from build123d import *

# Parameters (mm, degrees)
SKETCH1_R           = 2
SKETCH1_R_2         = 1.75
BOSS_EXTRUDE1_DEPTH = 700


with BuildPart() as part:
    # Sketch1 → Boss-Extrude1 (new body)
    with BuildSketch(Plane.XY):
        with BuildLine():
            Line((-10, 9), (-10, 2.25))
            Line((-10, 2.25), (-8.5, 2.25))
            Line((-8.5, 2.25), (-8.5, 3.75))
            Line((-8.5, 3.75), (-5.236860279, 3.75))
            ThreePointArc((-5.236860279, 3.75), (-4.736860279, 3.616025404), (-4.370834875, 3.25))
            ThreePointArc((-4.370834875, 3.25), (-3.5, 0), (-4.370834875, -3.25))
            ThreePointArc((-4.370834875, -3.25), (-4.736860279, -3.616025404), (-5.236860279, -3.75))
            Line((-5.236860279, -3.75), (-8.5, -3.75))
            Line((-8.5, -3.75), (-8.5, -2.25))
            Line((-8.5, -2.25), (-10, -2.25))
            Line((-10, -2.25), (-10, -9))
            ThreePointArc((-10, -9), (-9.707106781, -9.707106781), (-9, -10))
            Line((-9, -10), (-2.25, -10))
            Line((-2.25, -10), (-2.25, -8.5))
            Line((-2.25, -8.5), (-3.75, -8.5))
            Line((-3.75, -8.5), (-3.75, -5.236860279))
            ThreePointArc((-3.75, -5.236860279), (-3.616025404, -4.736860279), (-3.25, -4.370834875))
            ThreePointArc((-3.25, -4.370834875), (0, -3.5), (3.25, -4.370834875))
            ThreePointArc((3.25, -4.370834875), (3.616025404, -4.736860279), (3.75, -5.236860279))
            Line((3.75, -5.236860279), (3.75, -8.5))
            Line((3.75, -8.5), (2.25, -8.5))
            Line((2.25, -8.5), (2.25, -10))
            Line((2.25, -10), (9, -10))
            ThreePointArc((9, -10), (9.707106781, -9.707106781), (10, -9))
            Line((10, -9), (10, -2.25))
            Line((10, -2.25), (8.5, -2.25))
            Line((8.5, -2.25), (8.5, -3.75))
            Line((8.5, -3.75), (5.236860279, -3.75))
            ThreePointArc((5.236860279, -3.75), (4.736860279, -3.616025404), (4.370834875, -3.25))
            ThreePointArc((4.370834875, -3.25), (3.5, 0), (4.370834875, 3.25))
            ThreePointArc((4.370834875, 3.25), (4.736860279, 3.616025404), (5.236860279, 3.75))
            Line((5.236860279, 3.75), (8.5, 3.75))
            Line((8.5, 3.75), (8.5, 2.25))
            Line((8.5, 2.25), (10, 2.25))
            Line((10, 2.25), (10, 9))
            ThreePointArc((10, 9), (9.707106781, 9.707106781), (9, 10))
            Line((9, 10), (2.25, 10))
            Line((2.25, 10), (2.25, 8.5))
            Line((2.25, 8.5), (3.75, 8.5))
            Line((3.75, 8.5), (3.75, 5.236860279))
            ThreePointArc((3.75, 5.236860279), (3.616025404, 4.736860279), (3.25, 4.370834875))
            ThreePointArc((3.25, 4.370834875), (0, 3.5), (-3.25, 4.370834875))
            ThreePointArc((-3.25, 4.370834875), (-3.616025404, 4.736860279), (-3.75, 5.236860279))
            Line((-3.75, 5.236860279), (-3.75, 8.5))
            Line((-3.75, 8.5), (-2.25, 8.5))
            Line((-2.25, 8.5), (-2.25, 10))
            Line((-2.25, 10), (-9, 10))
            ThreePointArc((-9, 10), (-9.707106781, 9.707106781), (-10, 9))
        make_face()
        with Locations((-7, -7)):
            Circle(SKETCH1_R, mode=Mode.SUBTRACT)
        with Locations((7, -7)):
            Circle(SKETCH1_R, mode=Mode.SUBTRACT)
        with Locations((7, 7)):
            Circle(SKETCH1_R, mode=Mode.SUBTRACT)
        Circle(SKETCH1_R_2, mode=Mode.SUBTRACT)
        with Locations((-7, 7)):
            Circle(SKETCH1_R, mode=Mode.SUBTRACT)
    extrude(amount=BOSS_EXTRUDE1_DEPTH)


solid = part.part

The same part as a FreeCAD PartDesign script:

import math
import FreeCAD as App
import Part
import Sketcher

V = App.Vector
Q = App.Units.Quantity

doc = App.newDocument("Part")
body = doc.addObject("PartDesign::Body", "Body")

sketch1 = body.newObject("Sketcher::SketchObject", "Sketch")
sketch1.AttachmentSupport = (doc.getObject("XY_Plane"), [""])
sketch1.MapMode = "FlatFace"
sketch1.addGeometry([
    Part.LineSegment(V(-10, 9, 0), V(-10, 2.25, 0)),
    Part.LineSegment(V(-10, 2.25, 0), V(-8.5, 2.25, 0)),
    Part.LineSegment(V(-8.5, 2.25, 0), V(-8.5, 3.75, 0)),
    Part.LineSegment(V(-8.5, 3.75, 0), V(-5.23686, 3.75, 0)),
    Part.ArcOfCircle(Part.Circle(V(-5.23686, 2.75, 0), V(0, 0, 1), 1), math.radians(30), math.radians(90)),
    Part.ArcOfCircle(Part.Circle(V(-10, 0, 0), V(0, 0, 1), 6.5), math.radians(-30), math.radians(30)),
    Part.ArcOfCircle(Part.Circle(V(-5.23686, -2.75, 0), V(0, 0, 1), 1), math.radians(-90), math.radians(-30)),
    Part.LineSegment(V(-5.23686, -3.75, 0), V(-8.5, -3.75, 0)),
    Part.LineSegment(V(-8.5, -3.75, 0), V(-8.5, -2.25, 0)),
    Part.LineSegment(V(-8.5, -2.25, 0), V(-10, -2.25, 0)),
    Part.LineSegment(V(-10, -2.25, 0), V(-10, -9, 0)),
    Part.ArcOfCircle(Part.Circle(V(-9, -9, 0), V(0, 0, 1), 1), math.radians(-180), math.radians(-90)),
    Part.LineSegment(V(-9, -10, 0), V(-2.25, -10, 0)),
    Part.LineSegment(V(-2.25, -10, 0), V(-2.25, -8.5, 0)),
    Part.LineSegment(V(-2.25, -8.5, 0), V(-3.75, -8.5, 0)),
    Part.LineSegment(V(-3.75, -8.5, 0), V(-3.75, -5.23686, 0)),
    Part.ArcOfCircle(Part.Circle(V(-2.75, -5.23686, 0), V(0, 0, 1), 1), math.radians(120), math.radians(180)),
    Part.ArcOfCircle(Part.Circle(V(0, -10, 0), V(0, 0, 1), 6.5), math.radians(60), math.radians(120)),
    Part.ArcOfCircle(Part.Circle(V(2.75, -5.23686, 0), V(0, 0, 1), 1), math.radians(0), math.radians(60)),
    Part.LineSegment(V(3.75, -5.23686, 0), V(3.75, -8.5, 0)),
    Part.LineSegment(V(3.75, -8.5, 0), V(2.25, -8.5, 0)),
    Part.LineSegment(V(2.25, -8.5, 0), V(2.25, -10, 0)),
    Part.LineSegment(V(2.25, -10, 0), V(9, -10, 0)),
    Part.ArcOfCircle(Part.Circle(V(9, -9, 0), V(0, 0, 1), 1), math.radians(-90), math.radians(0)),
    Part.LineSegment(V(10, -9, 0), V(10, -2.25, 0)),
    Part.LineSegment(V(10, -2.25, 0), V(8.5, -2.25, 0)),
    Part.LineSegment(V(8.5, -2.25, 0), V(8.5, -3.75, 0)),
    Part.LineSegment(V(8.5, -3.75, 0), V(5.23686, -3.75, 0)),
    Part.ArcOfCircle(Part.Circle(V(5.23686, -2.75, 0), V(0, 0, 1), 1), math.radians(-150), math.radians(-90)),
    Part.ArcOfCircle(Part.Circle(V(10, 0, 0), V(0, 0, 1), 6.5), math.radians(150), math.radians(210)),
    Part.ArcOfCircle(Part.Circle(V(5.23686, 2.75, 0), V(0, 0, 1), 1), math.radians(90), math.radians(150)),
    Part.LineSegment(V(5.23686, 3.75, 0), V(8.5, 3.75, 0)),
    Part.LineSegment(V(8.5, 3.75, 0), V(8.5, 2.25, 0)),
    Part.LineSegment(V(8.5, 2.25, 0), V(10, 2.25, 0)),
    Part.LineSegment(V(10, 2.25, 0), V(10, 9, 0)),
    Part.ArcOfCircle(Part.Circle(V(9, 9, 0), V(0, 0, 1), 1), math.radians(0), math.radians(90)),
    Part.LineSegment(V(9, 10, 0), V(2.25, 10, 0)),
    Part.LineSegment(V(2.25, 10, 0), V(2.25, 8.5, 0)),
    Part.LineSegment(V(2.25, 8.5, 0), V(3.75, 8.5, 0)),
    Part.LineSegment(V(3.75, 8.5, 0), V(3.75, 5.23686, 0)),
    Part.ArcOfCircle(Part.Circle(V(2.75, 5.23686, 0), V(0, 0, 1), 1), math.radians(-60), math.radians(0)),
    Part.ArcOfCircle(Part.Circle(V(0, 10, 0), V(0, 0, 1), 6.5), math.radians(-120), math.radians(-60)),
    Part.ArcOfCircle(Part.Circle(V(-2.75, 5.23686, 0), V(0, 0, 1), 1), math.radians(180), math.radians(240)),
    Part.LineSegment(V(-3.75, 5.23686, 0), V(-3.75, 8.5, 0)),
    Part.LineSegment(V(-3.75, 8.5, 0), V(-2.25, 8.5, 0)),
    Part.LineSegment(V(-2.25, 8.5, 0), V(-2.25, 10, 0)),
    Part.LineSegment(V(-2.25, 10, 0), V(-9, 10, 0)),
    Part.ArcOfCircle(Part.Circle(V(-9, 9, 0), V(0, 0, 1), 1), math.radians(90), math.radians(180)),
    Part.Circle(V(-7, -7, 0), V(0, 0, 1), 2),
    Part.Circle(V(7, -7, 0), V(0, 0, 1), 2),
    Part.Circle(V(-7, 7, 0), V(0, 0, 1), 2),
    Part.Circle(V(0, 0, 0), V(0, 0, 1), 1.75),
    Part.Circle(V(7, 7, 0), V(0, 0, 1), 2),
], False)
sketch1.addConstraint([
    Sketcher.Constraint("Coincident", 0, 2, 1, 1),
    Sketcher.Constraint("Coincident", 1, 2, 2, 1),
    Sketcher.Constraint("Coincident", 2, 2, 3, 1),
    Sketcher.Constraint("Tangent", 3, 2, 4, 2),
    Sketcher.Constraint("Tangent", 4, 1, 5, 2),
    Sketcher.Constraint("Tangent", 5, 1, 6, 2),
    Sketcher.Constraint("Tangent", 6, 1, 7, 1),
    Sketcher.Constraint("Coincident", 7, 2, 8, 1),
    Sketcher.Constraint("Coincident", 8, 2, 9, 1),
    Sketcher.Constraint("Coincident", 9, 2, 10, 1),
    Sketcher.Constraint("Tangent", 10, 2, 11, 1),
    Sketcher.Constraint("Tangent", 11, 2, 12, 1),
    Sketcher.Constraint("Coincident", 12, 2, 13, 1),
    Sketcher.Constraint("Coincident", 13, 2, 14, 1),
    Sketcher.Constraint("Coincident", 14, 2, 15, 1),
    Sketcher.Constraint("Tangent", 15, 2, 16, 2),
    Sketcher.Constraint("Tangent", 16, 1, 17, 2),
    Sketcher.Constraint("Tangent", 17, 1, 18, 2),
    Sketcher.Constraint("Tangent", 18, 1, 19, 1),
    Sketcher.Constraint("Coincident", 19, 2, 20, 1),
    Sketcher.Constraint("Coincident", 20, 2, 21, 1),
    Sketcher.Constraint("Coincident", 21, 2, 22, 1),
    Sketcher.Constraint("Tangent", 22, 2, 23, 1),
    Sketcher.Constraint("Tangent", 23, 2, 24, 1),
    Sketcher.Constraint("Coincident", 24, 2, 25, 1),
    Sketcher.Constraint("Coincident", 25, 2, 26, 1),
    Sketcher.Constraint("Coincident", 26, 2, 27, 1),
    Sketcher.Constraint("Tangent", 27, 2, 28, 2),
    Sketcher.Constraint("Tangent", 28, 1, 29, 2),
    Sketcher.Constraint("Tangent", 29, 1, 30, 2),
    Sketcher.Constraint("Tangent", 30, 1, 31, 1),
    Sketcher.Constraint("Coincident", 31, 2, 32, 1),
    Sketcher.Constraint("Coincident", 32, 2, 33, 1),
    Sketcher.Constraint("Coincident", 33, 2, 34, 1),
    Sketcher.Constraint("Tangent", 34, 2, 35, 1),
    Sketcher.Constraint("Tangent", 35, 2, 36, 1),
    Sketcher.Constraint("Coincident", 36, 2, 37, 1),
    Sketcher.Constraint("Coincident", 37, 2, 38, 1),
    Sketcher.Constraint("Coincident", 38, 2, 39, 1),
    Sketcher.Constraint("Tangent", 39, 2, 40, 2),
    Sketcher.Constraint("Tangent", 40, 1, 41, 2),
    Sketcher.Constraint("Tangent", 41, 1, 42, 2),
    Sketcher.Constraint("Tangent", 42, 1, 43, 1),
    Sketcher.Constraint("Coincident", 43, 2, 44, 1),
    Sketcher.Constraint("Coincident", 44, 2, 45, 1),
    Sketcher.Constraint("Coincident", 45, 2, 46, 1),
    Sketcher.Constraint("Tangent", 46, 2, 47, 1),
    Sketcher.Constraint("Tangent", 47, 2, 0, 1),
    Sketcher.Constraint("Vertical", 0),
    Sketcher.Constraint("Horizontal", 1),
    Sketcher.Constraint("Vertical", 2),
    Sketcher.Constraint("Horizontal", 3),
    Sketcher.Constraint("Horizontal", 7),
    Sketcher.Constraint("Vertical", 8),
    Sketcher.Constraint("Horizontal", 9),
    Sketcher.Constraint("Vertical", 10),
    Sketcher.Constraint("Horizontal", 12),
    Sketcher.Constraint("Vertical", 13),
    Sketcher.Constraint("Horizontal", 14),
    Sketcher.Constraint("Vertical", 15),
    Sketcher.Constraint("Vertical", 19),
    Sketcher.Constraint("Horizontal", 20),
    Sketcher.Constraint("Vertical", 21),
    Sketcher.Constraint("Horizontal", 22),
    Sketcher.Constraint("Vertical", 24),
    Sketcher.Constraint("Horizontal", 25),
    Sketcher.Constraint("Vertical", 26),
    Sketcher.Constraint("Horizontal", 27),
    Sketcher.Constraint("Horizontal", 31),
    Sketcher.Constraint("Vertical", 32),
    Sketcher.Constraint("Horizontal", 33),
    Sketcher.Constraint("Vertical", 34),
    Sketcher.Constraint("Horizontal", 36),
    Sketcher.Constraint("Vertical", 37),
    Sketcher.Constraint("Horizontal", 38),
    Sketcher.Constraint("Vertical", 39),
    Sketcher.Constraint("Vertical", 43),
    Sketcher.Constraint("Horizontal", 44),
    Sketcher.Constraint("Vertical", 45),
    Sketcher.Constraint("Horizontal", 46),
    Sketcher.Constraint("Coincident", 51, 3, -1, 1),
    Sketcher.Constraint("Equal", 4, 6),
    Sketcher.Constraint("Equal", 6, 11),
    Sketcher.Constraint("Equal", 11, 16),
    Sketcher.Constraint("Equal", 5, 17),
    Sketcher.Constraint("Equal", 16, 18),
    Sketcher.Constraint("Equal", 18, 23),
    Sketcher.Constraint("Equal", 23, 28),
    Sketcher.Constraint("Equal", 17, 29),
    Sketcher.Constraint("Equal", 28, 30),
    Sketcher.Constraint("Equal", 30, 35),
    Sketcher.Constraint("Equal", 35, 40),
    Sketcher.Constraint("Equal", 29, 41),
    Sketcher.Constraint("Equal", 40, 42),
    Sketcher.Constraint("Equal", 42, 47),
    Sketcher.Constraint("Equal", 48, 49),
    Sketcher.Constraint("Equal", 49, 50),
    Sketcher.Constraint("Equal", 50, 52),
    Sketcher.Constraint("Symmetric", 4, 3, 28, 3, -1, 1),
    Sketcher.Constraint("Symmetric", 6, 3, 30, 3, -1, 1),
    Sketcher.Constraint("Symmetric", 11, 3, 35, 3, -1, 1),
    Sketcher.Constraint("Symmetric", 16, 3, 40, 3, -1, 1),
    Sketcher.Constraint("Symmetric", 18, 3, 42, 3, -1, 1),
    Sketcher.Constraint("Symmetric", 23, 3, 47, 3, -1, 1),
    Sketcher.Constraint("Symmetric", 49, 3, 50, 3, -1, 1),
    Sketcher.Constraint("Symmetric", 48, 3, 52, 3, -1, 1),
    Sketcher.Constraint("Symmetric", 1, 2, 25, 2, -1, 1),
    Sketcher.Constraint("Symmetric", 8, 2, 32, 2, -1, 1),
    Sketcher.Constraint("Symmetric", 13, 2, 37, 2, -1, 1),
    Sketcher.Constraint("Symmetric", 20, 2, 44, 2, -1, 1),
    Sketcher.Constraint("Symmetric", 16, 3, 18, 3, -2),
    Sketcher.Constraint("Symmetric", 11, 3, 23, 3, -2),
    Sketcher.Constraint("Symmetric", 6, 3, 28, 3, -2),
    Sketcher.Constraint("Symmetric", 48, 3, 49, 3, -2),
    Sketcher.Constraint("Symmetric", 13, 2, 20, 2, -2),
    Sketcher.Constraint("Symmetric", 8, 2, 25, 2, -2),
    Sketcher.Constraint("Horizontal", 17, 3, 11, 2),
    Sketcher.Constraint("Vertical", 5, 3, 0, 2),
    Sketcher.Constraint("Equal", 9, 14),
    Sketcher.Constraint("Equal", 46, 0),
    Sketcher.Constraint("Equal", 44, 2),
    Sketcher.Constraint("Equal", 8, 13),
    Sketcher.Constraint("Equal", 31, 15),
    Sketcher.Constraint("Diameter", 48, Q("4 mm")),
    Sketcher.Constraint("Radius", 4, Q("1 mm")),
    Sketcher.Constraint("Diameter", 51, Q("3.5 mm")),
    Sketcher.Constraint("Radius", 5, Q("6.5 mm")),
    Sketcher.Constraint("DistanceX", 1, 1, 1, 2, Q("1.5 mm")),
    Sketcher.Constraint("DistanceX", 5, 3, -1, 1, Q("10 mm")),
    Sketcher.Constraint("DistanceX", 48, 3, -1, 1, Q("7 mm")),
    Sketcher.Constraint("DistanceY", 48, 3, -1, 1, Q("7 mm")),
    Sketcher.Constraint("DistanceX", 12, 1, 12, 2, Q("6.75 mm")),
])
pad1 = body.newObject("PartDesign::Pad", "Pad")
pad1.Profile = sketch1
pad1.Length = 700

doc.recompute()
